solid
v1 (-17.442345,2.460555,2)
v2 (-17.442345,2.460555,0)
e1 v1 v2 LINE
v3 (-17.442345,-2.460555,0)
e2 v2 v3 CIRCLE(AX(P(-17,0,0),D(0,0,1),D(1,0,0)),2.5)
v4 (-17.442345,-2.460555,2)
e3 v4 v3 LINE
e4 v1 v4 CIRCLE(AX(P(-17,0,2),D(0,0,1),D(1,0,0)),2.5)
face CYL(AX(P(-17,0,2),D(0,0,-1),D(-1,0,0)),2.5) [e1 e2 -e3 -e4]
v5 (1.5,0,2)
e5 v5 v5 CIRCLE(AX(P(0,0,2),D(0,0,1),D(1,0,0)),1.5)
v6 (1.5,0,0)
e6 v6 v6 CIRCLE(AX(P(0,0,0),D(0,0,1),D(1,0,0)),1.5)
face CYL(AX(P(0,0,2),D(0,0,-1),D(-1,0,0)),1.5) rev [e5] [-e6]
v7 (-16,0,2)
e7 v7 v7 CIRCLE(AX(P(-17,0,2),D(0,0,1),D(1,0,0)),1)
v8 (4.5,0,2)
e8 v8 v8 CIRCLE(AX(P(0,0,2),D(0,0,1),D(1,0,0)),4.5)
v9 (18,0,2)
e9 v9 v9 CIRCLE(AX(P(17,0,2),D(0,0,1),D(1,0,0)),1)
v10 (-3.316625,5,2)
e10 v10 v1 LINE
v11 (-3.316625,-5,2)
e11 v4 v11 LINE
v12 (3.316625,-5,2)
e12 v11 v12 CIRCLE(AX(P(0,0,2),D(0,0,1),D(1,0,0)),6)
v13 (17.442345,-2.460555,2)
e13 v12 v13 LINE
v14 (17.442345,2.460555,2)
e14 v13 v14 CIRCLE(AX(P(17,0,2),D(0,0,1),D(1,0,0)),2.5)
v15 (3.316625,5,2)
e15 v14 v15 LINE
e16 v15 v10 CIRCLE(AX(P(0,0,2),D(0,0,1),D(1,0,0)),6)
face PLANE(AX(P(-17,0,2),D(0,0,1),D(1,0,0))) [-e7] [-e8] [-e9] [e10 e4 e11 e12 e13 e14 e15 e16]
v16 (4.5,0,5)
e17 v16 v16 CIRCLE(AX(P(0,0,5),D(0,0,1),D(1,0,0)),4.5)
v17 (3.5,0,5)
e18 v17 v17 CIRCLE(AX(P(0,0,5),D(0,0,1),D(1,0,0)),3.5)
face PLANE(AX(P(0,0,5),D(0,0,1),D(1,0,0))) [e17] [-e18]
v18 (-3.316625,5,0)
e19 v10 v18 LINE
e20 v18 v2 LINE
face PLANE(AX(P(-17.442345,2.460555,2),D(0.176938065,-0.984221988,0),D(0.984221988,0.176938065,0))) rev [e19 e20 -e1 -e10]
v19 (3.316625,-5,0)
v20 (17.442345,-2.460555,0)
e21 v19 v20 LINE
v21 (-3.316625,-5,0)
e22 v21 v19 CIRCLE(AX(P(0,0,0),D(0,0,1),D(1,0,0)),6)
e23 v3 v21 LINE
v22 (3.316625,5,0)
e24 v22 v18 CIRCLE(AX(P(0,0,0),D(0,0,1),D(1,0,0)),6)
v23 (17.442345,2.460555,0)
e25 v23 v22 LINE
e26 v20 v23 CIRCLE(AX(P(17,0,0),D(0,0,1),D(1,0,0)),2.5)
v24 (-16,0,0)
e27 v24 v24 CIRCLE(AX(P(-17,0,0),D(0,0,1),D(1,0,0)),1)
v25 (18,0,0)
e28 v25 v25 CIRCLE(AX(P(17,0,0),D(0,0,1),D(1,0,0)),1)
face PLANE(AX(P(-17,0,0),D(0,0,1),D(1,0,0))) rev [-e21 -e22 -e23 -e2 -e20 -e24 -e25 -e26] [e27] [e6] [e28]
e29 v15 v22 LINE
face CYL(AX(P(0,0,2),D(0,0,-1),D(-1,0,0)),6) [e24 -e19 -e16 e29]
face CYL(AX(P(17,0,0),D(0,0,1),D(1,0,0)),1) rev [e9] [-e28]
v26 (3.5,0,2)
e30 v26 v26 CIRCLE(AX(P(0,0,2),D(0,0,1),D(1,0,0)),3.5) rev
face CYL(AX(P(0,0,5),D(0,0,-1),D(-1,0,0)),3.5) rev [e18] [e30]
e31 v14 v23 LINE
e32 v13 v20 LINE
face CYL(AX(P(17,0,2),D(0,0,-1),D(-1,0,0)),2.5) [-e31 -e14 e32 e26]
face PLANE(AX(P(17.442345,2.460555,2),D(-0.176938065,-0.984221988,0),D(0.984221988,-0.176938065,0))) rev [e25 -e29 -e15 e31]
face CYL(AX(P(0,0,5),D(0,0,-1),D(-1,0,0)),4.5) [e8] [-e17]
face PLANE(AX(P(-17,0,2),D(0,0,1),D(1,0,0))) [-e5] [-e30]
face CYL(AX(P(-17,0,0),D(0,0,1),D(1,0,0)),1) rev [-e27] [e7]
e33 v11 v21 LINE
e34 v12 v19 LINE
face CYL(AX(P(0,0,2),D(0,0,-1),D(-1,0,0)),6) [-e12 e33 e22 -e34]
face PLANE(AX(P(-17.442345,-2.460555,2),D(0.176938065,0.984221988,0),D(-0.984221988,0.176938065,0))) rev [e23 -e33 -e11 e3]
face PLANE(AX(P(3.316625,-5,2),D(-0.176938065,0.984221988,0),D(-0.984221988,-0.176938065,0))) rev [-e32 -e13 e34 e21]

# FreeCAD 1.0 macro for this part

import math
import FreeCAD as App
import Part
import Sketcher
from FreeCAD import Vector
Q = App.Units.Quantity

doc = App.newDocument("Part")
body = doc.addObject("PartDesign::Body", "Body")

# Sketch on XY plane
sketch1 = body.newObject("Sketcher::SketchObject", "Sketch")
sketch1.AttachmentSupport = (doc.getObject("XY_Plane"), [""])
sketch1.MapMode = "FlatFace"
sketch1.addGeometry(Part.LineSegment(Vector(-3.3, 5, 0), Vector(-17.4, 2.5, 0)), False)
sketch1.addGeometry(Part.ArcOfCircle(Part.Circle(Vector(-17, 0, 0), Vector(0, 0, 1), 2.5), math.radians(100), math.radians(260)), False)
sketch1.addGeometry(Part.LineSegment(Vector(-17.4, -2.5, 0), Vector(-3.3, -5, 0)), False)
sketch1.addGeometry(Part.ArcOfCircle(Part.Circle(Vector(0, 0, 0), Vector(0, 0, 1), 6), math.radians(-124), math.radians(-56)), False)
sketch1.addGeometry(Part.LineSegment(Vector(3.3, -5, 0), Vector(17.4, -2.5, 0)), False)
sketch1.addGeometry(Part.ArcOfCircle(Part.Circle(Vector(17, 0, 0), Vector(0, 0, 1), 2.5), math.radians(-80), math.radians(80)), False)
sketch1.addGeometry(Part.LineSegment(Vector(17.4, 2.5, 0), Vector(3.3, 5, 0)), False)
sketch1.addGeometry(Part.ArcOfCircle(Part.Circle(Vector(0, 0, 0), Vector(0, 0, 1), 6), math.radians(56), math.radians(124)), False)
sketch1.addGeometry(Part.Circle(Vector(0, 0, 0), Vector(0, 0, 1), 1.5), False)
sketch1.addConstraint(Sketcher.Constraint("Tangent", 0, 2, 1, 1))
sketch1.addConstraint(Sketcher.Constraint("Tangent", 1, 2, 2, 1))
sketch1.addConstraint(Sketcher.Constraint("Coincident", 2, 2, 3, 1))
sketch1.addConstraint(Sketcher.Constraint("Coincident", 3, 2, 4, 1))
sketch1.addConstraint(Sketcher.Constraint("Tangent", 4, 2, 5, 1))
sketch1.addConstraint(Sketcher.Constraint("Tangent", 5, 2, 6, 1))
sketch1.addConstraint(Sketcher.Constraint("Coincident", 6, 2, 7, 1))
sketch1.addConstraint(Sketcher.Constraint("Coincident", 7, 2, 0, 1))
sketch1.addConstraint(Sketcher.Constraint("Coincident", 3, 3, -1, 1))
sketch1.addConstraint(Sketcher.Constraint("Coincident", 7, 3, -1, 1))
sketch1.addConstraint(Sketcher.Constraint("Coincident", 8, 3, -1, 1))
sketch1.addConstraint(Sketcher.Constraint("Equal", 1, 5))
sketch1.addConstraint(Sketcher.Constraint("Equal", 3, 7))
sketch1.addConstraint(Sketcher.Constraint("Symmetric", 1, 3, 5, 3, -1, 1))
sketch1.addConstraint(Sketcher.Constraint("Symmetric", 1, 2, 4, 2, -2))
sketch1.addConstraint(Sketcher.Constraint("Parallel", 0, 4))
sketch1.addConstraint(Sketcher.Constraint("Parallel", 2, 6))
sketch1.addConstraint(Sketcher.Constraint("Diameter", 8, Q("3 mm")))
sketch1.addConstraint(Sketcher.Constraint("Radius", 3, Q("6 mm")))
sketch1.addConstraint(Sketcher.Constraint("Radius", 1, Q("2.5 mm")))
sketch1.addConstraint(Sketcher.Constraint("DistanceX", 1, 3, -1, 1, Q("17 mm")))
sketch1.addConstraint(Sketcher.Constraint("DistanceY", 2, 2, -1, 1, Q("5 mm")))
pad1 = body.newObject("PartDesign::Pad", "Pad")
pad1.Profile = sketch1
pad1.Length = 2

# Sketch on XY plane
sketch2 = body.newObject("Sketcher::SketchObject", "Sketch001")
sketch2.AttachmentSupport = (doc.getObject("XY_Plane"), [""])
sketch2.MapMode = "FlatFace"
sketch2.AttachmentOffset = App.Placement(Vector(0, 0, 2), App.Rotation())
sketch2.addGeometry(Part.Circle(Vector(0, 0, 0), Vector(0, 0, 1), 4.5), False)
sketch2.addGeometry(Part.Circle(Vector(0, 0, 0), Vector(0, 0, 1), 3.5), False)
sketch2.addConstraint(Sketcher.Constraint("Coincident", 0, 3, -1, 1))
sketch2.addConstraint(Sketcher.Constraint("Coincident", 1, 3, -1, 1))
sketch2.addConstraint(Sketcher.Constraint("Diameter", 0, Q("9 mm")))
sketch2.addConstraint(Sketcher.Constraint("Diameter", 1, Q("7 mm")))
pad2 = body.newObject("PartDesign::Pad", "Pad001")
pad2.Profile = sketch2
pad2.Length = 3

# Sketch on XY plane
sketch3 = body.newObject("Sketcher::SketchObject", "Sketch002")
sketch3.AttachmentSupport = (doc.getObject("XY_Plane"), [""])
sketch3.MapMode = "FlatFace"
sketch3.AttachmentOffset = App.Placement(Vector(0, 0, 2), App.Rotation())
sketch3.addGeometry(Part.Circle(Vector(-17, 0, 0), Vector(0, 0, 1), 1), False)
sketch3.addGeometry(Part.Circle(Vector(17, 0, 0), Vector(0, 0, 1), 1), False)
sketch3.addConstraint(Sketcher.Constraint("Equal", 0, 1))
sketch3.addConstraint(Sketcher.Constraint("Symmetric", 0, 3, 1, 3, -1, 1))
sketch3.addConstraint(Sketcher.Constraint("PointOnObject", 0, 3, -1))
sketch3.addConstraint(Sketcher.Constraint("Diameter", 0, Q("2 mm")))
sketch3.addConstraint(Sketcher.Constraint("DistanceX", 0, 3, -1, 1, Q("17 mm")))
pocket1 = body.newObject("PartDesign::Pocket", "Pocket")
pocket1.Profile = sketch3
pocket1.Type = "ThroughAll"

doc.recompute()
